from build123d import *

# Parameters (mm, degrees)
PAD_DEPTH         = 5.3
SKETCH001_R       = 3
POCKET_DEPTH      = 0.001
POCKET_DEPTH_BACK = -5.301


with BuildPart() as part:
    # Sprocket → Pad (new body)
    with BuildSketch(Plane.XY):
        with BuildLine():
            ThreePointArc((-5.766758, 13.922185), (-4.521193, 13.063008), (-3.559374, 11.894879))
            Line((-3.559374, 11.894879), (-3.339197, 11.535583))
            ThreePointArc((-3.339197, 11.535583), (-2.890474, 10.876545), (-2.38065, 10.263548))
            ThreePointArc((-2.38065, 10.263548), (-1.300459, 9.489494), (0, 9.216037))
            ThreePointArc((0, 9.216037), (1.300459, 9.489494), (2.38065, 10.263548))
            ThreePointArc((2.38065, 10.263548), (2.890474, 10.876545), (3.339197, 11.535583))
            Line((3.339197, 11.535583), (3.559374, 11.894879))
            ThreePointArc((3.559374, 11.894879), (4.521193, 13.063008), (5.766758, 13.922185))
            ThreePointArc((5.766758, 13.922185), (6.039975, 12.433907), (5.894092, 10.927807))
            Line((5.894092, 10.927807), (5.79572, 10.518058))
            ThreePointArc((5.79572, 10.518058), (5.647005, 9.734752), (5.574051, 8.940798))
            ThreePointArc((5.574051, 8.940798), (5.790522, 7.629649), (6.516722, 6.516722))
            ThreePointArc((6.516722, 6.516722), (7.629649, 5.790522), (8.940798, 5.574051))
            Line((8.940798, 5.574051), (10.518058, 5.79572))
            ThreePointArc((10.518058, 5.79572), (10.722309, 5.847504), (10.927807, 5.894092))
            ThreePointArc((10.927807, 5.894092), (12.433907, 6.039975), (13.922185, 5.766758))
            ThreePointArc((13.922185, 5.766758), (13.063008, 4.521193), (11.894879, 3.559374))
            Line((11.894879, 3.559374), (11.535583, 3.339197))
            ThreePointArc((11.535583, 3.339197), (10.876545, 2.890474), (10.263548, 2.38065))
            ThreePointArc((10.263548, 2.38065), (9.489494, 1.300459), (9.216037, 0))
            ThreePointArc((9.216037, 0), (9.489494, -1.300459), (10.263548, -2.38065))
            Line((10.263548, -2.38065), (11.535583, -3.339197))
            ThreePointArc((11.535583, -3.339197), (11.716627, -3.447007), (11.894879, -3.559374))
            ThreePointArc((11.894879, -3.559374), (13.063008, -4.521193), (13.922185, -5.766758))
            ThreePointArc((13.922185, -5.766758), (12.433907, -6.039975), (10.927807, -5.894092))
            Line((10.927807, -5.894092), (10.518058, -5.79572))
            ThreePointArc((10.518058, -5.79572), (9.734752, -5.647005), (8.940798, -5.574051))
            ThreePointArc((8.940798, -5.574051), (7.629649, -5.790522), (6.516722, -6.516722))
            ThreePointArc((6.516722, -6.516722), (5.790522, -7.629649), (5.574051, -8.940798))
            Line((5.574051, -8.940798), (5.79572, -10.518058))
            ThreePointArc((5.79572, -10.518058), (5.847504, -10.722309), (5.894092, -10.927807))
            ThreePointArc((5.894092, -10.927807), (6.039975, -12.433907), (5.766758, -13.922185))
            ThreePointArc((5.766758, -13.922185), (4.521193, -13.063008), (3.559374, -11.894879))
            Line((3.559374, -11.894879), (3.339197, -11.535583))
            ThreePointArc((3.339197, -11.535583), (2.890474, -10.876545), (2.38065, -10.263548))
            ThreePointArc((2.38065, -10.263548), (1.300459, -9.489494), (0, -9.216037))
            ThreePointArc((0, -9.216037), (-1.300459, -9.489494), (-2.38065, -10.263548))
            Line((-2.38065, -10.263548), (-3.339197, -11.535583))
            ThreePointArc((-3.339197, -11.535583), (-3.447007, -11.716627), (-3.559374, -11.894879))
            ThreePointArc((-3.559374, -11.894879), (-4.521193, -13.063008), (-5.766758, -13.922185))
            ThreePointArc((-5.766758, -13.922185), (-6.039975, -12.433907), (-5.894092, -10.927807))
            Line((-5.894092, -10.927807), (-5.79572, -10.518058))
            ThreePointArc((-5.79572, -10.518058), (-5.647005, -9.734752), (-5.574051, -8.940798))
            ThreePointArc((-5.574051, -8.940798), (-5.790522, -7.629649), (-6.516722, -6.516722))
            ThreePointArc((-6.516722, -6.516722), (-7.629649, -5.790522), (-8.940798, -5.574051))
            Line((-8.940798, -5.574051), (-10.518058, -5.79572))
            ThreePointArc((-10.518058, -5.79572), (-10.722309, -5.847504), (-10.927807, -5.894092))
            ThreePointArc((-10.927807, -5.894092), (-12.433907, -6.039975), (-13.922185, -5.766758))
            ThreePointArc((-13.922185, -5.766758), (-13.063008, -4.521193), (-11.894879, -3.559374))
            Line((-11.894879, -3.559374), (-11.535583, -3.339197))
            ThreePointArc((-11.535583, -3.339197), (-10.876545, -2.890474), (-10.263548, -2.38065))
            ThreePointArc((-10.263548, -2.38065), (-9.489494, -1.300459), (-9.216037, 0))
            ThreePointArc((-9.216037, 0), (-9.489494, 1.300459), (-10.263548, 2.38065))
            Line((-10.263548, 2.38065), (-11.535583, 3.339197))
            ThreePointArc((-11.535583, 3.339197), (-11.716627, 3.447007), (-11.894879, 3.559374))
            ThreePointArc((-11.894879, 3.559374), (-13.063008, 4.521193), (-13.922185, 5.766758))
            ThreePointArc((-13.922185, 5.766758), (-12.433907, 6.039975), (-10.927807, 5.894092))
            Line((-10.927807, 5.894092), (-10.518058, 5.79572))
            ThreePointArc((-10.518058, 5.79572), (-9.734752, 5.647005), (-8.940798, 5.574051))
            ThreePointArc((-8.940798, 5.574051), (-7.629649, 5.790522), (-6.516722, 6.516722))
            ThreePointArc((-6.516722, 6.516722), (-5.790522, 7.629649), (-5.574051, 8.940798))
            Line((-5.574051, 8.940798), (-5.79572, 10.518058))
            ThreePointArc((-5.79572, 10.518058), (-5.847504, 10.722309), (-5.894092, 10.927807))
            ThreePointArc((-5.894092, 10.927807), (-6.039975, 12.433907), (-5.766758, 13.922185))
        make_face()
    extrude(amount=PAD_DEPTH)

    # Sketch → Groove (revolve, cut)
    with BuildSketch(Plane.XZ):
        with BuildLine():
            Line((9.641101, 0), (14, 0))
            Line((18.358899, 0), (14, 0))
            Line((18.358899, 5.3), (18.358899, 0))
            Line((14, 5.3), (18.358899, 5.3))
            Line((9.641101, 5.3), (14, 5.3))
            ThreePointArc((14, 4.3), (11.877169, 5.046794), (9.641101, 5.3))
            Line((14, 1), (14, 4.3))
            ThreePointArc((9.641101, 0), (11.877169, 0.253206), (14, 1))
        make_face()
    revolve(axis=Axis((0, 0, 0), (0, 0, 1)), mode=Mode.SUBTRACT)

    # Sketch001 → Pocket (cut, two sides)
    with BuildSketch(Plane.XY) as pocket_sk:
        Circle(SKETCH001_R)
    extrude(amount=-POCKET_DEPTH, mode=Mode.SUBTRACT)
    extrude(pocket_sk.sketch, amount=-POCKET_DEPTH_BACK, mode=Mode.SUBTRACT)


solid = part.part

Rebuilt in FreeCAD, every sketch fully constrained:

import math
import FreeCAD as App
import Part
import Sketcher
from FreeCAD import Vector
Q = App.Units.Quantity

doc = App.newDocument("Part")
params = doc.addObject("Spreadsheet::Sheet", "Params")
for row, (alias, value) in enumerate([
    ("pad1_length", "5.3 mm"),
    ("sketch2_height", "5.3 mm"),
    ("sketch2_height2", "3.3 mm"),
    ("groove_angle", "360 deg"),
    ("sketch3_diameter", "6 mm"),
], start=1):
    params.set(f"A{row}", alias)
    params.set(f"B{row}", "=" + value)
    params.setAlias(f"B{row}", alias)

body = doc.addObject("PartDesign::Body", "Body")

# Sketch on XY plane
sketch1 = doc.addObject("Sketcher::SketchObject", "Sketch")
body.addObject(sketch1)
sketch1.AttachmentSupport = (doc.XY_Plane, [""])
sketch1.MapMode = "FlatFace"
sketch1.addGeometry([
    Part.ArcOfCircle(Part.Circle(Vector(-8.21, 9.04, 0), Vector(0, 0, 1), 5.46), math.radians(31), math.radians(63)),  # 0
    Part.ArcOfCircle(Part.Circle(Vector(-0.59, 12.2, 0), Vector(0, 0, 1), 5.46), math.radians(162), math.radians(193)),  # 1
    Part.ArcOfCircle(Part.Circle(Vector(2.23, 12.66, 0), Vector(0, 0, 1), 8.31), math.radians(-167.95), math.radians(-165.05)),  # 2
    Part.LineSegment(Vector(-5.8, 10.52, 0), Vector(-5.57, 8.94, 0)),  # 3
    Part.ArcOfCircle(Part.Circle(Vector(-8.8, 8.8, 0), Vector(0, 0, 1), 3.23), math.radians(-45), math.radians(3)),  # 4
    Part.ArcOfCircle(Part.Circle(Vector(-8.8, 8.8, 0), Vector(0, 0, 1), 3.23), math.radians(-93), math.radians(-45)),  # 5
    Part.ArcOfCircle(Part.Circle(Vector(-8.58, 13.88, 0), Vector(0, 0, 1), 8.31), math.radians(-103.5), math.radians(-92.5)),  # 6
    Part.LineSegment(Vector(-10.52, 5.8, 0), Vector(-10.93, 5.89, 0)),  # 7
    Part.ArcOfCircle(Part.Circle(Vector(-12.2, 0.59, 0), Vector(0, 0, 1), 5.46), math.radians(77), math.radians(108)),  # 8
    Part.ArcOfCircle(Part.Circle(Vector(-9.04, 8.21, 0), Vector(0, 0, 1), 5.46), math.radians(-153), math.radians(-121)),  # 9
    Part.ArcOfCircle(Part.Circle(Vector(-7.38, 10.53, 0), Vector(0, 0, 1), 8.31), math.radians(-122.95), math.radians(-120.05)),  # 10
    Part.LineSegment(Vector(-11.54, 3.34, 0), Vector(-10.26, 2.38, 0)),  # 11
    Part.ArcOfCircle(Part.Circle(Vector(-12.45, 0, 0), Vector(0, 0, 1), 3.23), math.radians(0), math.radians(48)),  # 12
    Part.ArcOfCircle(Part.Circle(Vector(-12.45, 0, 0), Vector(0, 0, 1), 3.23), math.radians(-48), math.radians(0)),  # 13
    Part.ArcOfCircle(Part.Circle(Vector(-15.88, 3.75, 0), Vector(0, 0, 1), 8.31), math.radians(-58.5), math.radians(-47.5)),  # 14
    Part.LineSegment(Vector(-11.54, -3.34, 0), Vector(-11.89, -3.56, 0)),  # 15
    Part.ArcOfCircle(Part.Circle(Vector(-9.04, -8.21, 0), Vector(0, 0, 1), 5.46), math.radians(121), math.radians(153)),  # 16
    Part.ArcOfCircle(Part.Circle(Vector(-12.2, -0.59, 0), Vector(0, 0, 1), 5.46), math.radians(-108), math.radians(-77)),  # 17
    Part.ArcOfCircle(Part.Circle(Vector(-12.66, 2.23, 0), Vector(0, 0, 1), 8.31), math.radians(-77.95), math.radians(-75.05)),  # 18
    Part.LineSegment(Vector(-10.52, -5.8, 0), Vector(-8.94, -5.57, 0)),  # 19
    Part.ArcOfCircle(Part.Circle(Vector(-8.8, -8.8, 0), Vector(0, 0, 1), 3.23), math.radians(45), math.radians(93)),  # 20
    Part.ArcOfCircle(Part.Circle(Vector(-8.8, -8.8, 0), Vector(0, 0, 1), 3.23), math.radians(-3), math.radians(45)),  # 21
    Part.ArcOfCircle(Part.Circle(Vector(-13.88, -8.58, 0), Vector(0, 0, 1), 8.31), math.radians(-13.5), math.radians(-2.5)),  # 22
    Part.LineSegment(Vector(-5.8, -10.52, 0), Vector(-5.89, -10.93, 0)),  # 23
    Part.ArcOfCircle(Part.Circle(Vector(-0.59, -12.2, 0), Vector(0, 0, 1), 5.46), math.radians(167), math.radians(198)),  # 24
    Part.ArcOfCircle(Part.Circle(Vector(-8.21, -9.04, 0), Vector(0, 0, 1), 5.46), math.radians(-63), math.radians(-31)),  # 25
    Part.ArcOfCircle(Part.Circle(Vector(-10.53, -7.38, 0), Vector(0, 0, 1), 8.31), math.radians(-32.95), math.radians(-30.05)),  # 26
    Part.LineSegment(Vector(-3.34, -11.54, 0), Vector(-2.38, -10.26, 0)),  # 27
    Part.ArcOfCircle(Part.Circle(Vector(0, -12.45, 0), Vector(0, 0, 1), 3.23), math.radians(90), math.radians(138)),  # 28
    Part.ArcOfCircle(Part.Circle(Vector(0, -12.45, 0), Vector(0, 0, 1), 3.23), math.radians(42), math.radians(90)),  # 29
    Part.ArcOfCircle(Part.Circle(Vector(-3.75, -15.88, 0), Vector(0, 0, 1), 8.31), math.radians(31.5), math.radians(42.5)),  # 30
    Part.LineSegment(Vector(3.34, -11.54, 0), Vector(3.56, -11.89, 0)),  # 31
    Part.ArcOfCircle(Part.Circle(Vector(8.21, -9.04, 0), Vector(0, 0, 1), 5.46), math.radians(-149), math.radians(-117)),  # 32
    Part.ArcOfCircle(Part.Circle(Vector(0.59, -12.2, 0), Vector(0, 0, 1), 5.46), math.radians(-18), math.radians(13)),  # 33
    Part.ArcOfCircle(Part.Circle(Vector(-2.23, -12.66, 0), Vector(0, 0, 1), 8.31), math.radians(12.05), math.radians(14.95)),  # 34
    Part.LineSegment(Vector(5.8, -10.52, 0), Vector(5.57, -8.94, 0)),  # 35
    Part.ArcOfCircle(Part.Circle(Vector(8.8, -8.8, 0), Vector(0, 0, 1), 3.23), math.radians(135), math.radians(183)),  # 36
    Part.ArcOfCircle(Part.Circle(Vector(8.8, -8.8, 0), Vector(0, 0, 1), 3.23), math.radians(87), math.radians(135)),  # 37
    Part.ArcOfCircle(Part.Circle(Vector(8.58, -13.88, 0), Vector(0, 0, 1), 8.31), math.radians(76.5), math.radians(87.5)),  # 38
    Part.LineSegment(Vector(10.52, -5.8, 0), Vector(10.93, -5.89, 0)),  # 39
    Part.ArcOfCircle(Part.Circle(Vector(12.2, -0.59, 0), Vector(0, 0, 1), 5.46), math.radians(-103), math.radians(-72)),  # 40
    Part.ArcOfCircle(Part.Circle(Vector(9.04, -8.21, 0), Vector(0, 0, 1), 5.46), math.radians(27), math.radians(59)),  # 41
    Part.ArcOfCircle(Part.Circle(Vector(7.38, -10.53, 0), Vector(0, 0, 1), 8.31), math.radians(57.05), math.radians(59.95)),  # 42
    Part.LineSegment(Vector(11.54, -3.34, 0), Vector(10.26, -2.38, 0)),  # 43
    Part.ArcOfCircle(Part.Circle(Vector(12.45, 0, 0), Vector(0, 0, 1), 3.23), math.radians(180), math.radians(228)),  # 44
    Part.ArcOfCircle(Part.Circle(Vector(12.45, 0, 0), Vector(0, 0, 1), 3.23), math.radians(132), math.radians(180)),  # 45
    Part.ArcOfCircle(Part.Circle(Vector(15.88, -3.75, 0), Vector(0, 0, 1), 8.31), math.radians(121.5), math.radians(132.5)),  # 46
    Part.LineSegment(Vector(11.54, 3.34, 0), Vector(11.89, 3.56, 0)),  # 47
    Part.ArcOfCircle(Part.Circle(Vector(9.04, 8.21, 0), Vector(0, 0, 1), 5.46), math.radians(-59), math.radians(-27)),  # 48
    Part.ArcOfCircle(Part.Circle(Vector(12.2, 0.59, 0), Vector(0, 0, 1), 5.46), math.radians(72), math.radians(103)),  # 49
    Part.ArcOfCircle(Part.Circle(Vector(12.66, -2.23, 0), Vector(0, 0, 1), 8.31), math.radians(102.05), math.radians(104.95)),  # 50
    Part.LineSegment(Vector(10.52, 5.8, 0), Vector(8.94, 5.57, 0)),  # 51
    Part.ArcOfCircle(Part.Circle(Vector(8.8, 8.8, 0), Vector(0, 0, 1), 3.23), math.radians(-135), math.radians(-87)),  # 52
    Part.ArcOfCircle(Part.Circle(Vector(8.8, 8.8, 0), Vector(0, 0, 1), 3.23), math.radians(177), math.radians(225)),  # 53
    Part.ArcOfCircle(Part.Circle(Vector(13.88, 8.58, 0), Vector(0, 0, 1), 8.31), math.radians(166.5), math.radians(177.5)),  # 54
    Part.LineSegment(Vector(5.8, 10.52, 0), Vector(5.89, 10.93, 0)),  # 55
    Part.ArcOfCircle(Part.Circle(Vector(0.59, 12.2, 0), Vector(0, 0, 1), 5.46), math.radians(-13), math.radians(18)),  # 56
    Part.ArcOfCircle(Part.Circle(Vector(8.21, 9.04, 0), Vector(0, 0, 1), 5.46), math.radians(117), math.radians(149)),  # 57
    Part.LineSegment(Vector(3.56, 11.89, 0), Vector(3.34, 11.54, 0)),  # 58
    Part.ArcOfCircle(Part.Circle(Vector(-3.75, 15.88, 0), Vector(0, 0, 1), 8.31), math.radians(-42.5), math.radians(-31.5)),  # 59
    Part.ArcOfCircle(Part.Circle(Vector(0, 12.45, 0), Vector(0, 0, 1), 3.23), math.radians(-90), math.radians(-42)),  # 60
    Part.ArcOfCircle(Part.Circle(Vector(0, 12.45, 0), Vector(0, 0, 1), 3.23), math.radians(-138), math.radians(-90)),  # 61
    Part.ArcOfCircle(Part.Circle(Vector(3.75, 15.88, 0), Vector(0, 0, 1), 8.31), math.radians(-148.5), math.radians(-137.5)),  # 62
    Part.LineSegment(Vector(-3.34, 11.54, 0), Vector(-3.56, 11.89, 0)),  # 63
], False)
sketch1.addConstraint([
    Sketcher.Constraint("Coincident", 0, 2, 1, 1),
    Sketcher.Constraint("Coincident", 1, 2, 2, 1),
    Sketcher.Constraint("Coincident", 2, 2, 3, 1),
    Sketcher.Constraint("Coincident", 3, 2, 4, 2),
    Sketcher.Constraint("Tangent", 4, 1, 5, 2),
    Sketcher.Constraint("Tangent", 5, 1, 6, 2),
    Sketcher.Constraint("Tangent", 6, 1, 7, 1),
    Sketcher.Constraint("Tangent", 7, 2, 8, 1),
    Sketcher.Constraint("Coincident", 8, 2, 9, 1),
    Sketcher.Constraint("Coincident", 9, 2, 10, 1),
    Sketcher.Constraint("Coincident", 10, 2, 11, 1),
    Sketcher.Constraint("Coincident", 11, 2, 12, 2),
    Sketcher.Constraint("Tangent", 12, 1, 13, 2),
    Sketcher.Constraint("Tangent", 13, 1, 14, 2),
    Sketcher.Constraint("Tangent", 14, 1, 15, 1),
    Sketcher.Constraint("Tangent", 15, 2, 16, 1),
    Sketcher.Constraint("Coincident", 16, 2, 17, 1),
    Sketcher.Constraint("Coincident", 17, 2, 18, 1),
    Sketcher.Constraint("Coincident", 18, 2, 19, 1),
    Sketcher.Constraint("Coincident", 19, 2, 20, 2),
    Sketcher.Constraint("Tangent", 20, 1, 21, 2),
    Sketcher.Constraint("Tangent", 21, 1, 22, 2),
    Sketcher.Constraint("Tangent", 22, 1, 23, 1),
    Sketcher.Constraint("Tangent", 23, 2, 24, 1),
    Sketcher.Constraint("Coincident", 24, 2, 25, 1),
    Sketcher.Constraint("Coincident", 25, 2, 26, 1),
    Sketcher.Constraint("Coincident", 26, 2, 27, 1),
    Sketcher.Constraint("Coincident", 27, 2, 28, 2),
    Sketcher.Constraint("Tangent", 28, 1, 29, 2),
    Sketcher.Constraint("Tangent", 29, 1, 30, 2),
    Sketcher.Constraint("Tangent", 30, 1, 31, 1),
    Sketcher.Constraint("Tangent", 31, 2, 32, 1),
    Sketcher.Constraint("Coincident", 32, 2, 33, 1),
    Sketcher.Constraint("Coincident", 33, 2, 34, 1),
    Sketcher.Constraint("Coincident", 34, 2, 35, 1),
    Sketcher.Constraint("Coincident", 35, 2, 36, 2),
    Sketcher.Constraint("Tangent", 36, 1, 37, 2),
    Sketcher.Constraint("Tangent", 37, 1, 38, 2),
    Sketcher.Constraint("Tangent", 38, 1, 39, 1),
    Sketcher.Constraint("Tangent", 39, 2, 40, 1),
    Sketcher.Constraint("Coincident", 40, 2, 41, 1),
    Sketcher.Constraint("Coincident", 41, 2, 42, 1),
    Sketcher.Constraint("Coincident", 42, 2, 43, 1),
    Sketcher.Constraint("Coincident", 43, 2, 44, 2),
    Sketcher.Constraint("Tangent", 44, 1, 45, 2),
    Sketcher.Constraint("Tangent", 45, 1, 46, 2),
    Sketcher.Constraint("Tangent", 46, 1, 47, 1),
    Sketcher.Constraint("Tangent", 47, 2, 48, 1),
    Sketcher.Constraint("Coincident", 48, 2, 49, 1),
    Sketcher.Constraint("Coincident", 49, 2, 50, 1),
    Sketcher.Constraint("Coincident", 50, 2, 51, 1),
    Sketcher.Constraint("Coincident", 51, 2, 52, 2),
    Sketcher.Constraint("Tangent", 52, 1, 53, 2),
    Sketcher.Constraint("Tangent", 53, 1, 54, 2),
    Sketcher.Constraint("Tangent", 54, 1, 55, 1),
    Sketcher.Constraint("Tangent", 55, 2, 56, 1),
    Sketcher.Constraint("Coincident", 56, 2, 57, 1),
    Sketcher.Constraint("Tangent", 57, 2, 58, 1),
    Sketcher.Constraint("Tangent", 58, 2, 59, 2),
    Sketcher.Constraint("Tangent", 59, 1, 60, 2),
    Sketcher.Constraint("Tangent", 60, 1, 61, 2),
    Sketcher.Constraint("Tangent", 61, 1, 62, 2),
    Sketcher.Constraint("Tangent", 62, 1, 63, 1),
    Sketcher.Constraint("Tangent", 63, 2, 0, 1),
    Sketcher.Constraint("Equal", 4, 5),
    Sketcher.Constraint("Equal", 1, 8),
    Sketcher.Constraint("Equal", 0, 9),
    Sketcher.Constraint("Equal", 5, 12),
    Sketcher.Constraint("Equal", 12, 13),
    Sketcher.Constraint("Equal", 6, 14),
    Sketcher.Constraint("Equal", 9, 16),
    Sketcher.Constraint("Equal", 8, 17),
    Sketcher.Constraint("Equal", 2, 18),
    Sketcher.Constraint("Equal", 13, 20),
    Sketcher.Constraint("Equal", 20, 21),
    Sketcher.Constraint("Equal", 14, 22),
    Sketcher.Constraint("Equal", 17, 24),
    Sketcher.Constraint("Equal", 16, 25),
    Sketcher.Constraint("Equal", 10, 26),
    Sketcher.Constraint("Equal", 21, 28),
    Sketcher.Constraint("Equal", 28, 29),
    Sketcher.Constraint("Equal", 22, 30),
    Sketcher.Constraint("Equal", 25, 32),
    Sketcher.Constraint("Equal", 24, 33),
    Sketcher.Constraint("Equal", 18, 34),
    Sketcher.Constraint("Equal", 29, 36),
    Sketcher.Constraint("Equal", 36, 37),
    Sketcher.Constraint("Equal", 30, 38),
    Sketcher.Constraint("Equal", 33, 40),
    Sketcher.Constraint("Equal", 32, 41),
    Sketcher.Constraint("Equal", 26, 42),
    Sketcher.Constraint("Equal", 37, 44),
    Sketcher.Constraint("Equal", 44, 45),
    Sketcher.Constraint("Equal", 38, 46),
    Sketcher.Constraint("Equal", 41, 48),
    Sketcher.Constraint("Equal", 40, 49),
    Sketcher.Constraint("Equal", 34, 50),
    Sketcher.Constraint("Equal", 45, 52),
    Sketcher.Constraint("Equal", 52, 53),
    Sketcher.Constraint("Equal", 46, 54),
    Sketcher.Constraint("Equal", 49, 56),
    Sketcher.Constraint("Equal", 48, 57),
    Sketcher.Constraint("Equal", 54, 59),
    Sketcher.Constraint("Equal", 53, 60),
    Sketcher.Constraint("Equal", 60, 61),
    Sketcher.Constraint("Equal", 59, 62),
    Sketcher.Constraint("Symmetric", 0, 3, 32, 3, -1, 1),
    Sketcher.Constraint("Symmetric", 1, 3, 33, 3, -1, 1),
    Sketcher.Constraint("Symmetric", 2, 3, 34, 3, -1, 1),
    Sketcher.Constraint("Symmetric", 4, 3, 36, 3, -1, 1),
    Sketcher.Constraint("Symmetric", 8, 3, 40, 3, -1, 1),
    Sketcher.Constraint("Symmetric", 9, 3, 41, 3, -1, 1),
    Sketcher.Constraint("Symmetric", 10, 3, 42, 3, -1, 1),
    Sketcher.Constraint("Symmetric", 12, 3, 44, 3, -1, 1),
    Sketcher.Constraint("Symmetric", 16, 3, 48, 3, -1, 1),
    Sketcher.Constraint("Symmetric", 17, 3, 49, 3, -1, 1),
    Sketcher.Constraint("Symmetric", 18, 3, 50, 3, -1, 1),
    Sketcher.Constraint("Symmetric", 20, 3, 52, 3, -1, 1),
    Sketcher.Constraint("Symmetric", 24, 3, 56, 3, -1, 1),
    Sketcher.Constraint("Symmetric", 25, 3, 57, 3, -1, 1),
    Sketcher.Constraint("Symmetric", 28, 3, 60, 3, -1, 1),
    Sketcher.Constraint("Symmetric", 26, 2, 58, 2, -1, 1),
    Sketcher.Constraint("Symmetric", 25, 3, 32, 3, -2),
    Sketcher.Constraint("Symmetric", 24, 3, 33, 3, -2),
    Sketcher.Constraint("Symmetric", 20, 3, 36, 3, -2),
    Sketcher.Constraint("Symmetric", 17, 3, 40, 3, -2),
    Sketcher.Constraint("Symmetric", 16, 3, 41, 3, -2),
    Sketcher.Constraint("Symmetric", 59, 3, 62, 3, -2),
    Sketcher.Constraint("Symmetric", 22, 1, 34, 2, -2),
    Sketcher.Constraint("Symmetric", 18, 2, 38, 1, -2),
    Sketcher.Constraint("Symmetric", 14, 1, 42, 2, -2),
    Sketcher.Constraint("Symmetric", 13, 1, 43, 2, -2),
    Sketcher.Constraint("Symmetric", 10, 2, 46, 1, -2),
    Sketcher.Constraint("Symmetric", 6, 1, 50, 2, -2),
    Sketcher.Constraint("Symmetric", 2, 2, 54, 1, -2),
    Sketcher.Constraint("PointOnObject", 12, 1, -1),
    Sketcher.Constraint("PointOnObject", 28, 1, -2),
    Sketcher.Constraint("PointOnObject", 44, 1, -1),
    Sketcher.Constraint("PointOnObject", 60, 1, -2),
    Sketcher.Constraint("Perpendicular", 3, 19),
    Sketcher.Constraint("Perpendicular", 7, 23),
    Sketcher.Constraint("Perpendicular", 11, 27),
    Sketcher.Constraint("Perpendicular", 15, 31),
    Sketcher.Constraint("Perpendicular", 19, 35),
    Sketcher.Constraint("Perpendicular", 27, 43),
    Sketcher.Constraint("Perpendicular", 35, 51),
    Sketcher.Constraint("Perpendicular", 47, 63),
    Sketcher.Constraint("Horizontal", 27, 2, 29, 1),
    Sketcher.Constraint("Horizontal", 25, 2, 31, 2),
    Sketcher.Constraint("Horizontal", 23, 2, 33, 2),
    Sketcher.Constraint("Horizontal", 21, 1, 35, 2),
    Sketcher.Constraint("Horizontal", 20, 1, 36, 1),
    Sketcher.Constraint("Horizontal", 19, 2, 37, 1),
    Sketcher.Constraint("Horizontal", 17, 2, 39, 2),
    Sketcher.Constraint("Horizontal", 15, 2, 41, 2),
    Sketcher.Constraint("Horizontal", 4, 1, 52, 1),
    Sketcher.Constraint("Vertical", 4, 1, 20, 1),
    Sketcher.Constraint("Equal", 3, 11),
    Sketcher.Constraint("Equal", 7, 15),
    Sketcher.Constraint("Equal", 15, 23),
    Sketcher.Constraint("Equal", 23, 31),
    Sketcher.Constraint("Angle", 3, Q("-82.000016 deg")),
    Sketcher.Constraint("Angle", 11, Q("-36.999996 deg")),
    Sketcher.Constraint("Angle", 7, Q("166.500004 deg")),
    Sketcher.Constraint("Radius", 2, 8.309091),
    Sketcher.Constraint("Radius", 0, 5.458237),
    Sketcher.Constraint("Radius", 1, 5.458248),
    Sketcher.Constraint("Radius", 4, 3.228972),
    Sketcher.Constraint("Radius", 6, 8.308996),
    Sketcher.Constraint("Radius", 10, 8.307925),
    Sketcher.Constraint("DistanceY", -1, 1, 0, 3, 9.042958),
    Sketcher.Constraint("DistanceY", -1, 1, 1, 3, 12.202008),
    Sketcher.Constraint("DistanceX", 4, 3, -1, 1, 8.79995),
    Sketcher.Constraint("DistanceY", -1, 1, 4, 3, 8.79995),
    Sketcher.Constraint("DistanceX", 9, 3, -1, 1, 9.042958),
    Sketcher.Constraint("DistanceX", 4, 1, -1, 1, 6.516722),
])
pad1 = doc.addObject("PartDesign::Pad", "Pad")
body.addObject(pad1)
pad1.Profile = sketch1
pad1.setExpression("Length", "Params.pad1_length")

# Sketch on XZ plane
sketch2 = doc.addObject("Sketcher::SketchObject", "Sketch001")
body.addObject(sketch2)
sketch2.AttachmentSupport = (doc.XZ_Plane, [""])
sketch2.MapMode = "FlatFace"
sketch2.addGeometry([
    Part.LineSegment(Vector(9.6, 0, 0), Vector(18.4, 0, 0)),  # 0
    Part.LineSegment(Vector(18.4, 0, 0), Vector(18.4, 5.3, 0)),  # 1
    Part.LineSegment(Vector(18.4, 5.3, 0), Vector(9.6, 5.3, 0)),  # 2
    Part.ArcOfCircle(Part.Circle(Vector(9.6, -4.7, 0), Vector(0, 0, 1), 10), math.radians(64), math.radians(90)),  # 3
    Part.LineSegment(Vector(14, 4.3, 0), Vector(14, 1, 0)),  # 4
    Part.ArcOfCircle(Part.Circle(Vector(9.6, 10, 0), Vector(0, 0, 1), 10), math.radians(-90), math.radians(-64)),  # 5
], False)
sketch2.addConstraint([
    Sketcher.Constraint("Coincident", 0, 2, 1, 1),
    Sketcher.Constraint("Coincident", 1, 2, 2, 1),
    Sketcher.Constraint("Tangent", 2, 2, 3, 2),
    Sketcher.Constraint("Coincident", 3, 1, 4, 1),
    Sketcher.Constraint("Coincident", 4, 2, 5, 2),
    Sketcher.Constraint("Tangent", 5, 1, 0, 1),
    Sketcher.Constraint("Horizontal", 0),
    Sketcher.Constraint("Vertical", 1),
    Sketcher.Constraint("Horizontal", 2),
    Sketcher.Constraint("Vertical", 4),
    Sketcher.Constraint("Equal", 3, 5),
    Sketcher.Constraint("PointOnObject", 0, 2, -1),
    Sketcher.Constraint("Vertical", 3, 3, 5, 3),
    Sketcher.Constraint("DistanceY", 1, 1, 1, 2, 5.3),
    Sketcher.Constraint("DistanceY", 4, 2, 4, 1, 3.3),
    Sketcher.Constraint("DistanceX", -1, 1, 3, 1, 14.0),
    Sketcher.Constraint("Radius", 3, 10.000013),
    Sketcher.Constraint("DistanceX", -1, 1, 0, 2, 18.358899),
])
sketch2.setExpression("Constraints[13]", "Params.sketch2_height")
sketch2.setExpression("Constraints[14]", "Params.sketch2_height2")
groove = doc.addObject("PartDesign::Groove", "Groove")
body.addObject(groove)
groove.Profile = sketch2
groove.ReferenceAxis = (sketch2, ["V_Axis"])
groove.setExpression("Angle", "Params.groove_angle")

# Sketch on XY plane
sketch3 = doc.addObject("Sketcher::SketchObject", "Sketch002")
body.addObject(sketch3)
sketch3.AttachmentSupport = (doc.XY_Plane, [""])
sketch3.MapMode = "FlatFace"
sketch3.addGeometry(Part.Circle(Vector(0, 0, 0), Vector(0, 0, 1), 3), False)
sketch3.addConstraint([
    Sketcher.Constraint("Coincident", 0, 3, -1, 1),
    Sketcher.Constraint("Diameter", 0, 6.0),
])
sketch3.setExpression("Constraints[1]", "Params.sketch3_diameter")
pocket1 = doc.addObject("PartDesign::Pocket", "Pocket")
body.addObject(pocket1)
pocket1.Profile = sketch3
pocket1.Type = "ThroughAll"
pocket1.Midplane = True

doc.recompute()
